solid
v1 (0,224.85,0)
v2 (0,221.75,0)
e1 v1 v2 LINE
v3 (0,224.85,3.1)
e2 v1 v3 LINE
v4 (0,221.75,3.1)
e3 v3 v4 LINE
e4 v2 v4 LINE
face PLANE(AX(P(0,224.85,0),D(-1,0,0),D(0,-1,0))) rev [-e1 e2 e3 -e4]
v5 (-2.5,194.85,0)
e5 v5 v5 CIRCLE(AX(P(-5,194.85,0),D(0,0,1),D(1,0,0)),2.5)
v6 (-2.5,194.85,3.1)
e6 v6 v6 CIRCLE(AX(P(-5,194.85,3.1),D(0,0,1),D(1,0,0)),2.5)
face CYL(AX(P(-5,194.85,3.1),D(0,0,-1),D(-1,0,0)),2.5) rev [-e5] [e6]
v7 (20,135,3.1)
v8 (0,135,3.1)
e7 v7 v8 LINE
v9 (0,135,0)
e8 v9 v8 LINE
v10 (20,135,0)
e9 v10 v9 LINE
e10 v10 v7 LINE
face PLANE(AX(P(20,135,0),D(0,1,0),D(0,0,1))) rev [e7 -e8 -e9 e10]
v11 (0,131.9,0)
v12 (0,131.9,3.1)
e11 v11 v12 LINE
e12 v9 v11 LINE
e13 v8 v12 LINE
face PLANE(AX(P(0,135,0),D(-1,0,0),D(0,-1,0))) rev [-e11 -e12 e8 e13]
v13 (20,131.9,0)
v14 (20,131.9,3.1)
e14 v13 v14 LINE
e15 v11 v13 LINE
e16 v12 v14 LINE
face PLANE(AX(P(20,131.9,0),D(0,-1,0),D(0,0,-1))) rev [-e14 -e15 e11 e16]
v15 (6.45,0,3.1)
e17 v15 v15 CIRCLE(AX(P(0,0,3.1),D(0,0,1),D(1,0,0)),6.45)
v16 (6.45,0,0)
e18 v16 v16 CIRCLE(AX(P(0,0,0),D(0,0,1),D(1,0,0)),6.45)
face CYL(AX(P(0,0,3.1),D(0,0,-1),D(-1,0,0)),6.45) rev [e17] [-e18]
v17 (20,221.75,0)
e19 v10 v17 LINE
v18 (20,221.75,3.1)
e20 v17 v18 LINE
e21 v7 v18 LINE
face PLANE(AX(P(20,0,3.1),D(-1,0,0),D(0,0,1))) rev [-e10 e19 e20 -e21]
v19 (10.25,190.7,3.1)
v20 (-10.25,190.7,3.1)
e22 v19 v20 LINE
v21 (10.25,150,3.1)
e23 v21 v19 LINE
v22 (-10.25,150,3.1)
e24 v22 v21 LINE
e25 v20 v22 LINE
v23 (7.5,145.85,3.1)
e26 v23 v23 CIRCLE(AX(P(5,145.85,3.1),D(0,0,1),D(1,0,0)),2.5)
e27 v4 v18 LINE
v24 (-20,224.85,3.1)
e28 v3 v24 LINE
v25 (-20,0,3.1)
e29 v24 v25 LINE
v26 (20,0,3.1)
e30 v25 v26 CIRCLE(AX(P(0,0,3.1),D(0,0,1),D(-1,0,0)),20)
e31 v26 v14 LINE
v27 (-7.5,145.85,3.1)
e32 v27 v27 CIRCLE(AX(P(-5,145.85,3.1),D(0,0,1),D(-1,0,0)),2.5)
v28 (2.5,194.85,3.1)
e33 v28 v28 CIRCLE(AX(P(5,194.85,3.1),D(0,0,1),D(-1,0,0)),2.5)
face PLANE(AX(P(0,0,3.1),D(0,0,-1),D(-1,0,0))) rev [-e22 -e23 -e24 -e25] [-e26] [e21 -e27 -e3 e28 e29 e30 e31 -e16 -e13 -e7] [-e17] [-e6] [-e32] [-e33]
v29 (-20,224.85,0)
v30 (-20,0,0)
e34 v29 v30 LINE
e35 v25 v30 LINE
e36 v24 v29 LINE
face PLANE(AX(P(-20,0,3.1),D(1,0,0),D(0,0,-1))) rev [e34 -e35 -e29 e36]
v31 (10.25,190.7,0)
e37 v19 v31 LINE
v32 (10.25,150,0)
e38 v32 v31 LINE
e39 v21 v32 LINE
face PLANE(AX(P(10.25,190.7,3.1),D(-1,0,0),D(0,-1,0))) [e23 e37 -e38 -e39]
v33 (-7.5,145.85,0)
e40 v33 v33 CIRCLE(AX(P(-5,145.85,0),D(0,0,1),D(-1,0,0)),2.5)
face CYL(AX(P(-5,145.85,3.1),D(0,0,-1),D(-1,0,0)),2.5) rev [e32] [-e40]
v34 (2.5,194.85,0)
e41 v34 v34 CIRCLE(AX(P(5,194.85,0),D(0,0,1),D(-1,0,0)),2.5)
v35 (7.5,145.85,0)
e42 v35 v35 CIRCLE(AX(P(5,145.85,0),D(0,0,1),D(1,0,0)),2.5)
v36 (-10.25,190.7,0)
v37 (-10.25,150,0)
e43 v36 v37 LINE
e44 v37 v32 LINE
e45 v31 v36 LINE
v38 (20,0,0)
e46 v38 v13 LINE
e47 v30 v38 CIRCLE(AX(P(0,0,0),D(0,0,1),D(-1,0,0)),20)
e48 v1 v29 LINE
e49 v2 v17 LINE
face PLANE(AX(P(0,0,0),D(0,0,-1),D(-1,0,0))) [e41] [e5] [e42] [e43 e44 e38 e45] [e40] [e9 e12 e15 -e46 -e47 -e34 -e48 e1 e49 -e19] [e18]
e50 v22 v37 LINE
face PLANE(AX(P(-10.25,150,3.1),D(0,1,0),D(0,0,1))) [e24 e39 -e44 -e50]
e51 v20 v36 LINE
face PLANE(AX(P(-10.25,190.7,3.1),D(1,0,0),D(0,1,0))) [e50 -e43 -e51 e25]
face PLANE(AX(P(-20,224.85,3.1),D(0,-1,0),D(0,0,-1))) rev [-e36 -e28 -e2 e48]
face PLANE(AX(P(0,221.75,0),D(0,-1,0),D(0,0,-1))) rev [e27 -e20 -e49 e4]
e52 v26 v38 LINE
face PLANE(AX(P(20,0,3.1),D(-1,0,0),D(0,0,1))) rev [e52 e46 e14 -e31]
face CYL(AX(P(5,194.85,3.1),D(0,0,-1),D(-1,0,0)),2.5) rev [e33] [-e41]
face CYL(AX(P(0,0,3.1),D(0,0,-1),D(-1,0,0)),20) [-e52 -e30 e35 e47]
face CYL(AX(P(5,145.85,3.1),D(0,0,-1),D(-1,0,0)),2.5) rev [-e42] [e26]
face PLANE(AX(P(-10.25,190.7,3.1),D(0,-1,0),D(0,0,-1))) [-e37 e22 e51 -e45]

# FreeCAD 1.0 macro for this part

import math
import FreeCAD as App
import Part
import Sketcher

V = App.Vector

doc = App.newDocument("Part")
body = doc.addObject("PartDesign::Body", "Body")

# Sketch on XY plane
sketch1 = body.newObject("Sketcher::SketchObject", "Sketch")
sketch1.AttachmentSupport = (doc.getObject("XY_Plane"), [""])
sketch1.MapMode = "FlatFace"
sketch1.addGeometry(Part.LineSegment(V(-20, 224.8, 0), V(-20, 0, 0)), False)
sketch1.addGeometry(Part.ArcOfCircle(Part.Circle(V(0, 0, 0), V(0, 0, 1), 20), math.radians(180), math.radians(360)), False)
sketch1.addGeometry(Part.LineSegment(V(20, 0, 0), V(20, 224.8, 0)), False)
sketch1.addGeometry(Part.LineSegment(V(20, 224.8, 0), V(-20, 224.8, 0)), False)
sketch1.addGeometry(Part.Circle(V(0, 0, 0), V(0, 0, 1), 6.5), False)
sketch1.addGeometry(Part.Circle(V(5, 145.8, 0), V(0, 0, 1), 2.5), False)
sketch1.addGeometry(Part.Circle(V(5, 194.8, 0), V(0, 0, 1), 2.5), False)
sketch1.addGeometry(Part.Circle(V(-5, 145.8, 0), V(0, 0, 1), 2.5), False)
sketch1.addGeometry(Part.LineSegment(V(-10.2, 150, 0), V(-10.2, 190.7, 0)), False)
sketch1.addGeometry(Part.LineSegment(V(-10.2, 190.7, 0), V(10.2, 190.7, 0)), False)
sketch1.addGeometry(Part.LineSegment(V(10.2, 190.7, 0), V(10.2, 150, 0)), False)
sketch1.addGeometry(Part.LineSegment(V(10.2, 150, 0), V(-10.2, 150, 0)), False)
sketch1.addGeometry(Part.Circle(V(-5, 194.8, 0), V(0, 0, 1), 2.5), False)
sketch1.addConstraint(Sketcher.Constraint("Tangent", 0, 2, 1, 1))
sketch1.addConstraint(Sketcher.Constraint("Tangent", 1, 2, 2, 1))
sketch1.addConstraint(Sketcher.Constraint("Coincident", 2, 2, 3, 1))
sketch1.addConstraint(Sketcher.Constraint("Coincident", 3, 2, 0, 1))
sketch1.addConstraint(Sketcher.Constraint("Coincident", 8, 2, 9, 1))
sketch1.addConstraint(Sketcher.Constraint("Coincident", 9, 2, 10, 1))
sketch1.addConstraint(Sketcher.Constraint("Coincident", 10, 2, 11, 1))
sketch1.addConstraint(Sketcher.Constraint("Coincident", 11, 2, 8, 1))
sketch1.addConstraint(Sketcher.Constraint("Vertical", 0))
sketch1.addConstraint(Sketcher.Constraint("Vertical", 2))
sketch1.addConstraint(Sketcher.Constraint("Horizontal", 3))
sketch1.addConstraint(Sketcher.Constraint("Vertical", 8))
sketch1.addConstraint(Sketcher.Constraint("Horizontal", 9))
sketch1.addConstraint(Sketcher.Constraint("Vertical", 10))
sketch1.addConstraint(Sketcher.Constraint("Horizontal", 11))
sketch1.addConstraint(Sketcher.Constraint("Coincident", 1, 3, -1, 1))
sketch1.addConstraint(Sketcher.Constraint("Coincident", 4, 3, -1, 1))
sketch1.addConstraint(Sketcher.Constraint("Equal", 5, 6))
sketch1.addConstraint(Sketcher.Constraint("Equal", 6, 7))
sketch1.addConstraint(Sketcher.Constraint("Equal", 7, 12))
sketch1.addConstraint(Sketcher.Constraint("Symmetric", 5, 3, 7, 3, -2))
sketch1.addConstraint(Sketcher.Constraint("Symmetric", 6, 3, 12, 3, -2))
sketch1.addConstraint(Sketcher.Constraint("Vertical", 5, 3, 6, 3))
sketch1.addConstraint(Sketcher.Constraint("Diameter", 5, 5.0))
sketch1.addConstraint(Sketcher.Constraint("Radius", 1, 20.0))
sketch1.addConstraint(Sketcher.Constraint("Diameter", 4, 12.9))
sketch1.addConstraint(Sketcher.Constraint("DistanceX", 9, 1, 9, 2, 20.5))
sketch1.addConstraint(Sketcher.Constraint("DistanceY", 8, 1, 8, 2, 40.7))
sketch1.addConstraint(Sketcher.Constraint("DistanceX", -1, 1, 5, 3, 5.0))
sketch1.addConstraint(Sketcher.Constraint("DistanceY", -1, 1, 10, 2, 150.0))
sketch1.addConstraint(Sketcher.Constraint("DistanceY", 5, 3, 6, 3, 49.0))
sketch1.addConstraint(Sketcher.Constraint("DistanceY", 6, 3, 2, 2, 30.0))
sketch1.addConstraint(Sketcher.Constraint("DistanceY", 0, 2, 0, 1, 224.85))
sketch1.addConstraint(Sketcher.Constraint("DistanceX", 8, 2, -1, 1, 10.25))
pad1 = body.newObject("PartDesign::Pad", "Pad")
pad1.Profile = sketch1
pad1.Length = 3.1

# Sketch on XY plane
sketch2 = body.newObject("Sketcher::SketchObject", "Sketch001")
sketch2.AttachmentSupport = (doc.getObject("XY_Plane"), [""])
sketch2.MapMode = "FlatFace"
sketch2.AttachmentOffset = App.Placement(V(0, 0, 3.1), App.Rotation())
sketch2.addGeometry(Part.LineSegment(V(0, 224.8, 0), V(0, 221.8, 0)), False)
sketch2.addGeometry(Part.LineSegment(V(0, 221.8, 0), V(20.1, 221.8, 0)), False)
sketch2.addGeometry(Part.LineSegment(V(20.1, 221.8, 0), V(20.1, 224.8, 0)), False)
sketch2.addGeometry(Part.LineSegment(V(20.1, 224.8, 0), V(0, 224.8, 0)), False)
sketch2.addGeometry(Part.LineSegment(V(0, 135, 0), V(0, 131.9, 0)), False)
sketch2.addGeometry(Part.LineSegment(V(0, 131.9, 0), V(20, 131.9, 0)), False)
sketch2.addGeometry(Part.LineSegment(V(20, 131.9, 0), V(20, 135, 0)), False)
sketch2.addGeometry(Part.LineSegment(V(20, 135, 0), V(0, 135, 0)), False)
sketch2.addConstraint(Sketcher.Constraint("Coincident", 0, 2, 1, 1))
sketch2.addConstraint(Sketcher.Constraint("Coincident", 1, 2, 2, 1))
sketch2.addConstraint(Sketcher.Constraint("Coincident", 2, 2, 3, 1))
sketch2.addConstraint(Sketcher.Constraint("Coincident", 3, 2, 0, 1))
sketch2.addConstraint(Sketcher.Constraint("Coincident", 4, 2, 5, 1))
sketch2.addConstraint(Sketcher.Constraint("Coincident", 5, 2, 6, 1))
sketch2.addConstraint(Sketcher.Constraint("Coincident", 6, 2, 7, 1))
sketch2.addConstraint(Sketcher.Constraint("Coincident", 7, 2, 4, 1))
sketch2.addConstraint(Sketcher.Constraint("Vertical", 0))
sketch2.addConstraint(Sketcher.Constraint("Horizontal", 1))
sketch2.addConstraint(Sketcher.Constraint("Vertical", 2))
sketch2.addConstraint(Sketcher.Constraint("Horizontal", 3))
sketch2.addConstraint(Sketcher.Constraint("Vertical", 4))
sketch2.addConstraint(Sketcher.Constraint("Horizontal", 5))
sketch2.addConstraint(Sketcher.Constraint("Vertical", 6))
sketch2.addConstraint(Sketcher.Constraint("Horizontal", 7))
sketch2.addConstraint(Sketcher.Constraint("PointOnObject", 0, 2, -2))
sketch2.addConstraint(Sketcher.Constraint("PointOnObject", 4, 2, -2))
sketch2.addConstraint(Sketcher.Constraint("Equal", 2, 4))
sketch2.addConstraint(Sketcher.Constraint("DistanceX", 5, 1, 5, 2, 20.0))
sketch2.addConstraint(Sketcher.Constraint("DistanceY", 0, 2, 0, 1, 3.1))
sketch2.addConstraint(Sketcher.Constraint("DistanceY", -1, 1, 6, 2, 135.0))
sketch2.addConstraint(Sketcher.Constraint("DistanceY", -1, 1, 0, 2, 221.75))
sketch2.addConstraint(Sketcher.Constraint("DistanceX", 1, 1, 1, 2, 20.093106))
pocket1 = body.newObject("PartDesign::Pocket", "Pocket")
pocket1.Profile = sketch2
pocket1.Type = "ThroughAll"

doc.recompute()
